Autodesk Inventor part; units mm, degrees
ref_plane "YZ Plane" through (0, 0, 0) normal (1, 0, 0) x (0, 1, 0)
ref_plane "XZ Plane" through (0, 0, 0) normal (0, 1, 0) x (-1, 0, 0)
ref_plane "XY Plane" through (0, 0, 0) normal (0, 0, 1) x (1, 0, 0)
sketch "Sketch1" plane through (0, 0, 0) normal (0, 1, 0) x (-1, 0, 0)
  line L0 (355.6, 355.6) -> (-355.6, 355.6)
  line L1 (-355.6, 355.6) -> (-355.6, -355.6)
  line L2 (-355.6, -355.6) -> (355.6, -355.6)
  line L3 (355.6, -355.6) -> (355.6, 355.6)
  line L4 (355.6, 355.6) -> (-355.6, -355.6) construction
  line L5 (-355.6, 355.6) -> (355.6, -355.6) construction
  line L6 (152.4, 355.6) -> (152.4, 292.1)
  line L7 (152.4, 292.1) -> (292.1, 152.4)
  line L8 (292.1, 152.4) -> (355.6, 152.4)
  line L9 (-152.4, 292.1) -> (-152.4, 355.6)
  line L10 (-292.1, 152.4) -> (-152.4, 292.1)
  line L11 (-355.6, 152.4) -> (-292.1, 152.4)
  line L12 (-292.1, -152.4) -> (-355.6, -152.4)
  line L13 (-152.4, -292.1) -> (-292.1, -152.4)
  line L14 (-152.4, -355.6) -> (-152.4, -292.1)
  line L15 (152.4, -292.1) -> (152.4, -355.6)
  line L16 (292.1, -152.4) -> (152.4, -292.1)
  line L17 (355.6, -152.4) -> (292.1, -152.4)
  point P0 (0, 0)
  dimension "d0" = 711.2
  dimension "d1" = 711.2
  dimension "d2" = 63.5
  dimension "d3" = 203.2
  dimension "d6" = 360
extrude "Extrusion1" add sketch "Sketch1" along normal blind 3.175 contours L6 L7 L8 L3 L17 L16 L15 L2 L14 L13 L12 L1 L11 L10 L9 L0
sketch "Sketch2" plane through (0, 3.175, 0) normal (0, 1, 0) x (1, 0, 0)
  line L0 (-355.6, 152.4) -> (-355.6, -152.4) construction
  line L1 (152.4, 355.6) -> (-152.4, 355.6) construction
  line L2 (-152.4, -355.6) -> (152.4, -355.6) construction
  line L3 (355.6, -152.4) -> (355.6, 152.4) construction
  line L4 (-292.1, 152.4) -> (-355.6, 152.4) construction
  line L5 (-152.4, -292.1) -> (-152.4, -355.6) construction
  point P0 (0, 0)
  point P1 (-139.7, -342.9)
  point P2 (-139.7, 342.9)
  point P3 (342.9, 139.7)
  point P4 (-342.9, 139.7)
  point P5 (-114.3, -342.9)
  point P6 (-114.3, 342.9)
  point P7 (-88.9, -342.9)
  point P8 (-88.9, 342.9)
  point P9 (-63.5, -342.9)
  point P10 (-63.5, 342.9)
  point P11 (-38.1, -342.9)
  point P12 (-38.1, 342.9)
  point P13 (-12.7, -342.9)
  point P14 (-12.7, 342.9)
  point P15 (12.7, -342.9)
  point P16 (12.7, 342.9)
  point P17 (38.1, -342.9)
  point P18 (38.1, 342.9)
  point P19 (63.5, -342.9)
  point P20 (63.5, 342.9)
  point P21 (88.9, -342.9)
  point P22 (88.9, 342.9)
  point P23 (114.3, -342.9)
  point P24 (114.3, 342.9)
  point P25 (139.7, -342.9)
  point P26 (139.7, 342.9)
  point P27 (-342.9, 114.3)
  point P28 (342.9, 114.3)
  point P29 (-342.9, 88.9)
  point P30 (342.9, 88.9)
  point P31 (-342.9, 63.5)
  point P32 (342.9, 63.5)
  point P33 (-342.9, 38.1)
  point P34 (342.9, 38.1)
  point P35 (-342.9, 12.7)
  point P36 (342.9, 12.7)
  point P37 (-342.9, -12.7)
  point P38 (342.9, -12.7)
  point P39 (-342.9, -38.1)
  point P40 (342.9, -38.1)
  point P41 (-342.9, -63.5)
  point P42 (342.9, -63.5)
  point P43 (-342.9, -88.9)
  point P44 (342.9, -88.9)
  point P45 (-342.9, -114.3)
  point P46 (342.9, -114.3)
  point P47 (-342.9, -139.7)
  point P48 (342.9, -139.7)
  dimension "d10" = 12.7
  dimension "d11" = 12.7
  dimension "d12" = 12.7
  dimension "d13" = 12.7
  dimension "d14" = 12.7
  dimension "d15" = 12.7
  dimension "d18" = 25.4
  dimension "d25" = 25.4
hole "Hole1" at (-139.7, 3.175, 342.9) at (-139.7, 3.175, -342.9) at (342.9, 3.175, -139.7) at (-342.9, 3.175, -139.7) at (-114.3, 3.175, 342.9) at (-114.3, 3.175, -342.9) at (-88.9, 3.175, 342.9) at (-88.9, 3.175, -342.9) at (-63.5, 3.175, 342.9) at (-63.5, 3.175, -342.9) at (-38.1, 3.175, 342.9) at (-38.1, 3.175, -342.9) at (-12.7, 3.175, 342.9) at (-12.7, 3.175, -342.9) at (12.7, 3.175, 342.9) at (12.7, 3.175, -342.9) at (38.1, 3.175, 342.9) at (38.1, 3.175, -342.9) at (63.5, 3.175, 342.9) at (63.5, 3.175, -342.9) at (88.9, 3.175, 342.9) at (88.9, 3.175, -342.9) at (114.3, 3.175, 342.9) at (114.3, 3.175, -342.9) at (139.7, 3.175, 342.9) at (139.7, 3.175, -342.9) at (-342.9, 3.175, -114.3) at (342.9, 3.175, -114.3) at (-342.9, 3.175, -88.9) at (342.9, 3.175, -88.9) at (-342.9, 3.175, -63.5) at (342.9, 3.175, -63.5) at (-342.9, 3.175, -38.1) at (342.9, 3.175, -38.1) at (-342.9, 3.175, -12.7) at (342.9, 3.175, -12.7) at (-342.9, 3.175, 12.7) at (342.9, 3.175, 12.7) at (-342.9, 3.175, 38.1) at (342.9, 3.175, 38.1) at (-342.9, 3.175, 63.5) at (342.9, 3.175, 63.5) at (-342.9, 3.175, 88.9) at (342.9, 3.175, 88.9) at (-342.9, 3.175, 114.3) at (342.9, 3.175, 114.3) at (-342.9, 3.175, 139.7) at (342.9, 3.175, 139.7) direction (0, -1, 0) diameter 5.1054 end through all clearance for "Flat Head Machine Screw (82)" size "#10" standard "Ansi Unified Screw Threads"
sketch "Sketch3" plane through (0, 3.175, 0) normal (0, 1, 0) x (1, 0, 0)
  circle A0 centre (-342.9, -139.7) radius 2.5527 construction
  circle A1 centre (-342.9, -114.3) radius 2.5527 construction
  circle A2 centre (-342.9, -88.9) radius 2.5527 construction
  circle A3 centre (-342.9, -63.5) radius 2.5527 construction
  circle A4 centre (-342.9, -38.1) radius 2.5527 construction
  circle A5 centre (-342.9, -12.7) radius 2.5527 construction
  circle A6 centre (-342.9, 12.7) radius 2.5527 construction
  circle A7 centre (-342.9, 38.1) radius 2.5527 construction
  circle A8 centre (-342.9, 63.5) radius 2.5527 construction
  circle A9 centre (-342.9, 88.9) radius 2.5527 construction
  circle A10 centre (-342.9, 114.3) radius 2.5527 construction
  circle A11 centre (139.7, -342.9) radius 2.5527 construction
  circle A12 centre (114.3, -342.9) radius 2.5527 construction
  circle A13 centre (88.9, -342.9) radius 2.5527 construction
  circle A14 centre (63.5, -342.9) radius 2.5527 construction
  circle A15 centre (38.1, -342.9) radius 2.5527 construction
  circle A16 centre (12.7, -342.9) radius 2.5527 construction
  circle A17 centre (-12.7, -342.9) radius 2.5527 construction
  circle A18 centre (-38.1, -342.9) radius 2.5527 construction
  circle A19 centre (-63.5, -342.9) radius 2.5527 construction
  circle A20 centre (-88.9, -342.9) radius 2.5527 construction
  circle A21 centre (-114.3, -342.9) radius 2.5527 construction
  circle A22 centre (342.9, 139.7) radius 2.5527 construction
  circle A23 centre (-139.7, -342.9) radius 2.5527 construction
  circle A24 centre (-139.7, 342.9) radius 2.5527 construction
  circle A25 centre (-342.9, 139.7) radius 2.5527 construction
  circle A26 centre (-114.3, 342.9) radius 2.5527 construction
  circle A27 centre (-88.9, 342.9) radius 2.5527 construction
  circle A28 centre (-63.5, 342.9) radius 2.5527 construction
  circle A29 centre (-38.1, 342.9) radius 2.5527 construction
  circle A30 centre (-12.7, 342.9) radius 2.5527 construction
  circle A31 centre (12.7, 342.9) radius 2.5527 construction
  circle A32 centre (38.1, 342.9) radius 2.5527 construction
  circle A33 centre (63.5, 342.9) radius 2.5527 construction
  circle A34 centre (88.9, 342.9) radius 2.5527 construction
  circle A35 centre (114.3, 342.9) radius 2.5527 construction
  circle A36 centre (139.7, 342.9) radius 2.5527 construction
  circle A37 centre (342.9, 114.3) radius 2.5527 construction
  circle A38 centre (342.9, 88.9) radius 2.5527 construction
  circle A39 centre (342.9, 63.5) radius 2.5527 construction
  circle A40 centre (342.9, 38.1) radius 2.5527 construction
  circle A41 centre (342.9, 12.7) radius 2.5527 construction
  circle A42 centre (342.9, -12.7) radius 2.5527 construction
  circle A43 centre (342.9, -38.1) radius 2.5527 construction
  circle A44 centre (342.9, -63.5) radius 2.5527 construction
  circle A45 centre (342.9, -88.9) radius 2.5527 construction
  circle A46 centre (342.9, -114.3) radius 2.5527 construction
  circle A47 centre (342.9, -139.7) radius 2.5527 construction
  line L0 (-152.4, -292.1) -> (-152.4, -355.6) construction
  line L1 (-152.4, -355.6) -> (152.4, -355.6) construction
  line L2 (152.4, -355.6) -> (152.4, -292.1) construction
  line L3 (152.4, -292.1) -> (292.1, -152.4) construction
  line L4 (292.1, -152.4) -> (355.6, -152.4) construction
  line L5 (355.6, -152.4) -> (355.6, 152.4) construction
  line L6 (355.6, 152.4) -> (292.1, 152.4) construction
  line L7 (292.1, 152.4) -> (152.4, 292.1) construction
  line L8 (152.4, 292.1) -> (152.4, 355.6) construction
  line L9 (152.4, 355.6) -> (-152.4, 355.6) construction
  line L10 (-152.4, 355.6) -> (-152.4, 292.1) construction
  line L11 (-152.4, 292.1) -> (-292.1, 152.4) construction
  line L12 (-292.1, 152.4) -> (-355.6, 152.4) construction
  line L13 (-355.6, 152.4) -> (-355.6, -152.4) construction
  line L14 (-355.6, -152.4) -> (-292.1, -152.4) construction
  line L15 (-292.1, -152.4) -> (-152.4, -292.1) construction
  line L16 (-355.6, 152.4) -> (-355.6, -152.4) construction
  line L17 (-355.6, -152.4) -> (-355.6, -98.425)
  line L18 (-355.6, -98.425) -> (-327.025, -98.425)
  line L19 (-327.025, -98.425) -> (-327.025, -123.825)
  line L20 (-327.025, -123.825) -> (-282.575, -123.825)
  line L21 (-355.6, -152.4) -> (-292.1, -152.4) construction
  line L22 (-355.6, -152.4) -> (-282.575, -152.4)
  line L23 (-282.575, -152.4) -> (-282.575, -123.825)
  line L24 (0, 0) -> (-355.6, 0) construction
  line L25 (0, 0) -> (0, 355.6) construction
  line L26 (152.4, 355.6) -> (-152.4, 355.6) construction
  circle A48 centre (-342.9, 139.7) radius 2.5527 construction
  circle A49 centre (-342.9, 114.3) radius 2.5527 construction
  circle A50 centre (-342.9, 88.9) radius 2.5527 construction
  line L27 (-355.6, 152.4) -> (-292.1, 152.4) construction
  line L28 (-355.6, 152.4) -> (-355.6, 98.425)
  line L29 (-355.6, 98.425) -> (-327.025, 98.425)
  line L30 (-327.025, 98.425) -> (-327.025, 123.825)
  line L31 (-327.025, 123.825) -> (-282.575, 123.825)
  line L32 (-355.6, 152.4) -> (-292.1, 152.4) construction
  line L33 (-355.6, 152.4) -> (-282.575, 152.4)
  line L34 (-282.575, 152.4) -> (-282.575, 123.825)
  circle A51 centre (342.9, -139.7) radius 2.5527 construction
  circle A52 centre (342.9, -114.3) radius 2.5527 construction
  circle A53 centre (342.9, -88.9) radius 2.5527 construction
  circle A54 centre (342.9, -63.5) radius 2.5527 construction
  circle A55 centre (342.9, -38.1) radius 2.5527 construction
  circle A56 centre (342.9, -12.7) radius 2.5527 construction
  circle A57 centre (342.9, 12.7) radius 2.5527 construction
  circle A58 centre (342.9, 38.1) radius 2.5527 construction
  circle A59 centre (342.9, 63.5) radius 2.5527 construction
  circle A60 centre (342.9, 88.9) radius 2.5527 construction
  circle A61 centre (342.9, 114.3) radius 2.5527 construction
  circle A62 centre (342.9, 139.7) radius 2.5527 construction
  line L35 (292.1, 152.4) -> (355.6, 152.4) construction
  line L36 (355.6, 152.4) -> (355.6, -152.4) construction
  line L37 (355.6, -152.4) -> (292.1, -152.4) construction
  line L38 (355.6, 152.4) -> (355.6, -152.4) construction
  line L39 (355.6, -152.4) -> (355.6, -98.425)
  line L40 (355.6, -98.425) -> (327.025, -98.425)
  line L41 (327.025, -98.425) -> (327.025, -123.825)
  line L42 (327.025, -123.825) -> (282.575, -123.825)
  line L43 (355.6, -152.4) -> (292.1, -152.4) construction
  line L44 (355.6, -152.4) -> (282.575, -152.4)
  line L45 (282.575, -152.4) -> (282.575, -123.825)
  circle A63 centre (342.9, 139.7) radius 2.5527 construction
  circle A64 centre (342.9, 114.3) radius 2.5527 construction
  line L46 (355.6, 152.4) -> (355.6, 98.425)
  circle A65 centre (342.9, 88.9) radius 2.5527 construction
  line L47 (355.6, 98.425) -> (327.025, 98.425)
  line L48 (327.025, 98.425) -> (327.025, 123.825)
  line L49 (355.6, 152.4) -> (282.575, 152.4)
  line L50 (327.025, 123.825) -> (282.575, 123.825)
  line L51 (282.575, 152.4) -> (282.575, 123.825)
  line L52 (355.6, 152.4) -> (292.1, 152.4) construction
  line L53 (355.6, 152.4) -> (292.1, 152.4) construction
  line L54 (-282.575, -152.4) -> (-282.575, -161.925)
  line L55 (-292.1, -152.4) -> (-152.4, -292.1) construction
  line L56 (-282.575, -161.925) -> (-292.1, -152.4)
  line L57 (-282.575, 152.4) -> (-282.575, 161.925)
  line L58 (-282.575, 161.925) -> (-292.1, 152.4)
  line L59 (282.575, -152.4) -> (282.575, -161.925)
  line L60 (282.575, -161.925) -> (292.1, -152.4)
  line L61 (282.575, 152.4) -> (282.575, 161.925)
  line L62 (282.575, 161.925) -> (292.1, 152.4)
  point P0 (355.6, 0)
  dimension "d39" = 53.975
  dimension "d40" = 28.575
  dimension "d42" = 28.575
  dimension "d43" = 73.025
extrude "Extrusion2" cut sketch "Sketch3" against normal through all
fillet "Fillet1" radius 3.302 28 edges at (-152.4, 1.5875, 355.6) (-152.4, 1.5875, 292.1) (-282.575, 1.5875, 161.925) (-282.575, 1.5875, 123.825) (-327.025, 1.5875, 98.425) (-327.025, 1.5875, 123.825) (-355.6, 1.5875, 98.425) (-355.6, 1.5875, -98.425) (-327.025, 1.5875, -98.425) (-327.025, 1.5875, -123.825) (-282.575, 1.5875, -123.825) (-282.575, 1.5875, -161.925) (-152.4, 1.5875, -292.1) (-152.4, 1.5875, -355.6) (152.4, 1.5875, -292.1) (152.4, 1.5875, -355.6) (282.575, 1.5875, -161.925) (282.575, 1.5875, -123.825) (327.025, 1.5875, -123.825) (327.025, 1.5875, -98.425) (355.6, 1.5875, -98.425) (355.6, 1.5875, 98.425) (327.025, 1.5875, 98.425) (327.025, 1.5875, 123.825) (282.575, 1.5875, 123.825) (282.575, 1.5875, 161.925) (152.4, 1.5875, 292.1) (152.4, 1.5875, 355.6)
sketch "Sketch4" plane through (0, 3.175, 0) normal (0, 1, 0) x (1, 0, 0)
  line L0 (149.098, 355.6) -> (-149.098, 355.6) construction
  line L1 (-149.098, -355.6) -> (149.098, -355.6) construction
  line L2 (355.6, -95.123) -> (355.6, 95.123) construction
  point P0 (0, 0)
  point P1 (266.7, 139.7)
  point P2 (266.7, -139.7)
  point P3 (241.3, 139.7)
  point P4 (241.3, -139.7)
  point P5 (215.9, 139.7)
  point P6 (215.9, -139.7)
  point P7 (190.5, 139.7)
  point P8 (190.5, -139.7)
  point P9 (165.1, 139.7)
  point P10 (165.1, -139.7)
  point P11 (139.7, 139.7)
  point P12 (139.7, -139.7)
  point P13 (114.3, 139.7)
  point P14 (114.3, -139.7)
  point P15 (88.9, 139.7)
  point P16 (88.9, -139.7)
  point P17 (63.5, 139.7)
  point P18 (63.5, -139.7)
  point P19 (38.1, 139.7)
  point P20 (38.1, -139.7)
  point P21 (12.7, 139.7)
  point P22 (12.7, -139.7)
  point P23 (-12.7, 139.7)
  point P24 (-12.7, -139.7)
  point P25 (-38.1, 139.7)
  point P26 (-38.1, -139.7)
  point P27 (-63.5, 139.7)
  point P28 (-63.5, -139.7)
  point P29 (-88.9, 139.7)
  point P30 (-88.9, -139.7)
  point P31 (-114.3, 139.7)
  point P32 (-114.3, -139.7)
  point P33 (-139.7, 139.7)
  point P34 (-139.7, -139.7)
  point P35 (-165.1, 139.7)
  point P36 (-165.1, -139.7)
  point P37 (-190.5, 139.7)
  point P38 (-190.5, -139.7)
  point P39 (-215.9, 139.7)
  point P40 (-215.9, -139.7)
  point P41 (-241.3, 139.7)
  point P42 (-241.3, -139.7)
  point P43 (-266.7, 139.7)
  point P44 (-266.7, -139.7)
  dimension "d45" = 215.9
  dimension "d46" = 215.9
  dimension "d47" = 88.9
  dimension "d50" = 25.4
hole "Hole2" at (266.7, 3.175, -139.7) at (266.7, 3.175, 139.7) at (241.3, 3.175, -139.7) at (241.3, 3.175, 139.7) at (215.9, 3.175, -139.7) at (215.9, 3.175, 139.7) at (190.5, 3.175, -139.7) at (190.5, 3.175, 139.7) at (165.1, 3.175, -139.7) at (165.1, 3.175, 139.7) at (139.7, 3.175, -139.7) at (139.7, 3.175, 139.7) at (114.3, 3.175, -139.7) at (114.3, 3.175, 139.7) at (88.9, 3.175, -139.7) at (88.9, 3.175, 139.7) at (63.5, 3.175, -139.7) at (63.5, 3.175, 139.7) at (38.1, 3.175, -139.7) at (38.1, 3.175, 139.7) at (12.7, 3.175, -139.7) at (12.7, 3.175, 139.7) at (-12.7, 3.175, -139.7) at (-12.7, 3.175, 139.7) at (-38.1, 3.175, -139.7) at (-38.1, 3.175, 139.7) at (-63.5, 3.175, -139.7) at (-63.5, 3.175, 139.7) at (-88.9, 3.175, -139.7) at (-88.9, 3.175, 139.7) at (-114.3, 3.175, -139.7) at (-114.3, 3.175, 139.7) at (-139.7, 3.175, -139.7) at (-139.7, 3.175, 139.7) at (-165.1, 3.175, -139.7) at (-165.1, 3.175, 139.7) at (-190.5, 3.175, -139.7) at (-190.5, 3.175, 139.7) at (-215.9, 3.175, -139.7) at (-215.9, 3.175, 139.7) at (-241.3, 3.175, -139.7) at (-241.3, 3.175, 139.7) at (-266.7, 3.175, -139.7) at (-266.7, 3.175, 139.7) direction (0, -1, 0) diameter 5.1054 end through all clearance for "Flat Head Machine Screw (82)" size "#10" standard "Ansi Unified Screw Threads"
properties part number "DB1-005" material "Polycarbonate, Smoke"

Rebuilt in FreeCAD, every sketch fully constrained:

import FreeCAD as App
import Part
import Sketcher

V = App.Vector
Q = App.Units.Quantity


def edges_at(feature, points):
    """Names of the edges that pass closest to the given points."""
    edges = feature.Shape.Edges
    near = lambda p: min(range(len(edges)), key=lambda i: edges[i].distToShape(Part.Vertex(*p))[0])
    return sorted({f"Edge{near(p) + 1}" for p in points})


def add_polygon(sketch, points):
    """Adds a closed chain of lines whose ends are joined by coincident constraints."""
    first, n = sketch.GeometryCount, len(points)
    for a, b in zip(points, points[1:] + points[:1]):
        sketch.addGeometry(Part.LineSegment(App.Vector(*a, 0), App.Vector(*b, 0)), False)
    for i in range(n):
        sketch.addConstraint(Sketcher.Constraint("Coincident", first + i, 2, first + (i + 1) % n, 1))

doc = App.newDocument("Part")
body = doc.addObject("PartDesign::Body", "Body")

# Sketch on XZ plane
sketch1 = doc.addObject("Sketcher::SketchObject", "Sketch")
body.addObject(sketch1)
sketch1.AttachmentSupport = (doc.XZ_Plane, [""])
sketch1.MapMode = "FlatFace"
add_polygon(sketch1, [(-152, 292), (-152, 356), (152, 356), (152, 292), (292, 152), (356, 152), (356, -152), (292, -152), (152, -292), (152, -356), (-152, -356), (-152, -292), (-292, -152), (-356, -152), (-356, 152), (-292, 152)])  # lines 0-15
sketch1.addConstraint([
    Sketcher.Constraint("Vertical", 0),
    Sketcher.Constraint("Horizontal", 1),
    Sketcher.Constraint("Vertical", 2),
    Sketcher.Constraint("Horizontal", 4),
    Sketcher.Constraint("Vertical", 5),
    Sketcher.Constraint("Horizontal", 6),
    Sketcher.Constraint("Vertical", 8),
    Sketcher.Constraint("Horizontal", 9),
    Sketcher.Constraint("Vertical", 10),
    Sketcher.Constraint("Horizontal", 12),
    Sketcher.Constraint("Vertical", 13),
    Sketcher.Constraint("Horizontal", 14),
    Sketcher.Constraint("Symmetric", 0, 2, 8, 2, -1, 1),
    Sketcher.Constraint("Symmetric", 2, 2, 10, 2, -1, 1),
    Sketcher.Constraint("Symmetric", 3, 2, 11, 2, -1, 1),
    Sketcher.Constraint("Symmetric", 5, 2, 13, 2, -1, 1),
    Sketcher.Constraint("Symmetric", 7, 2, 10, 2, -2),
    Sketcher.Constraint("Symmetric", 6, 2, 11, 2, -2),
    Sketcher.Constraint("Perpendicular", 3, 7),
    Sketcher.Constraint("Perpendicular", 11, 15),
    Sketcher.Constraint("Horizontal", 2, 2, 15, 2),
    Sketcher.Constraint("Equal", 14, 0),
    Sketcher.Constraint("Equal", 9, 5),
    Sketcher.Constraint("DistanceX", 4, 1, 4, 2, Q("2.5 in")),
    Sketcher.Constraint("DistanceY", 3, 2, 1, 2, Q("8 in")),
    Sketcher.Constraint("DistanceX", 1, 1, 1, 2, Q("12 in")),
])
pad1 = doc.addObject("PartDesign::Pad", "Pad")
body.addObject(pad1)
pad1.Profile = sketch1
pad1.Length = Q("0.125 in")
pad1.Reversed = True

# Sketch on XZ plane
sketch2 = doc.addObject("Sketcher::SketchObject", "Sketch001")
body.addObject(sketch2)
sketch2.AttachmentSupport = (doc.XZ_Plane, [""])
sketch2.MapMode = "FlatFace"
sketch2.AttachmentOffset = App.Placement(V(0, 0, -0.125 * 25.4), App.Rotation())
sketch2.addGeometry([
    Part.Circle(V(-139.7, 342.9, 0), V(0, 0, 1), 2.6),  # 0
    Part.Circle(V(-139.7, -342.9, 0), V(0, 0, 1), 2.6),  # 1
    Part.Circle(V(342.9, -139.7, 0), V(0, 0, 1), 2.6),  # 2
    Part.Circle(V(-342.9, -139.7, 0), V(0, 0, 1), 2.6),  # 3
    Part.Circle(V(-114.3, 342.9, 0), V(0, 0, 1), 2.6),  # 4
    Part.Circle(V(-114.3, -342.9, 0), V(0, 0, 1), 2.6),  # 5
    Part.Circle(V(-88.9, 342.9, 0), V(0, 0, 1), 2.6),  # 6
    Part.Circle(V(-88.9, -342.9, 0), V(0, 0, 1), 2.6),  # 7
    Part.Circle(V(-63.5, 342.9, 0), V(0, 0, 1), 2.6),  # 8
    Part.Circle(V(-63.5, -342.9, 0), V(0, 0, 1), 2.6),  # 9
    Part.Circle(V(-38.1, 342.9, 0), V(0, 0, 1), 2.6),  # 10
    Part.Circle(V(-38.1, -342.9, 0), V(0, 0, 1), 2.6),  # 11
    Part.Circle(V(-12.7, 342.9, 0), V(0, 0, 1), 2.6),  # 12
    Part.Circle(V(-12.7, -342.9, 0), V(0, 0, 1), 2.6),  # 13
    Part.Circle(V(12.7, 342.9, 0), V(0, 0, 1), 2.6),  # 14
    Part.Circle(V(12.7, -342.9, 0), V(0, 0, 1), 2.6),  # 15
    Part.Circle(V(38.1, 342.9, 0), V(0, 0, 1), 2.6),  # 16
    Part.Circle(V(38.1, -342.9, 0), V(0, 0, 1), 2.6),  # 17
    Part.Circle(V(63.5, 342.9, 0), V(0, 0, 1), 2.6),  # 18
    Part.Circle(V(63.5, -342.9, 0), V(0, 0, 1), 2.6),  # 19
    Part.Circle(V(88.9, 342.9, 0), V(0, 0, 1), 2.6),  # 20
    Part.Circle(V(88.9, -342.9, 0), V(0, 0, 1), 2.6),  # 21
    Part.Circle(V(114.3, 342.9, 0), V(0, 0, 1), 2.6),  # 22
    Part.Circle(V(114.3, -342.9, 0), V(0, 0, 1), 2.6),  # 23
    Part.Circle(V(139.7, 342.9, 0), V(0, 0, 1), 2.6),  # 24
    Part.Circle(V(139.7, -342.9, 0), V(0, 0, 1), 2.6),  # 25
    Part.Circle(V(-342.9, -114.3, 0), V(0, 0, 1), 2.6),  # 26
    Part.Circle(V(342.9, -114.3, 0), V(0, 0, 1), 2.6),  # 27
    Part.Circle(V(-342.9, -88.9, 0), V(0, 0, 1), 2.6),  # 28
    Part.Circle(V(342.9, -88.9, 0), V(0, 0, 1), 2.6),  # 29
    Part.Circle(V(-342.9, -63.5, 0), V(0, 0, 1), 2.6),  # 30
    Part.Circle(V(342.9, -63.5, 0), V(0, 0, 1), 2.6),  # 31
    Part.Circle(V(-342.9, -38.1, 0), V(0, 0, 1), 2.6),  # 32
    Part.Circle(V(342.9, -38.1, 0), V(0, 0, 1), 2.6),  # 33
    Part.Circle(V(-342.9, -12.7, 0), V(0, 0, 1), 2.6),  # 34
    Part.Circle(V(342.9, -12.7, 0), V(0, 0, 1), 2.6),  # 35
    Part.Circle(V(-342.9, 12.7, 0), V(0, 0, 1), 2.6),  # 36
    Part.Circle(V(342.9, 12.7, 0), V(0, 0, 1), 2.6),  # 37
    Part.Circle(V(-342.9, 38.1, 0), V(0, 0, 1), 2.6),  # 38
    Part.Circle(V(342.9, 38.1, 0), V(0, 0, 1), 2.6),  # 39
    Part.Circle(V(-342.9, 63.5, 0), V(0, 0, 1), 2.6),  # 40
    Part.Circle(V(342.9, 63.5, 0), V(0, 0, 1), 2.6),  # 41
    Part.Circle(V(-342.9, 88.9, 0), V(0, 0, 1), 2.6),  # 42
    Part.Circle(V(342.9, 88.9, 0), V(0, 0, 1), 2.6),  # 43
    Part.Circle(V(-342.9, 114.3, 0), V(0, 0, 1), 2.6),  # 44
    Part.Circle(V(342.9, 114.3, 0), V(0, 0, 1), 2.6),  # 45
    Part.Circle(V(-342.9, 139.7, 0), V(0, 0, 1), 2.6),  # 46
    Part.Circle(V(342.9, 139.7, 0), V(0, 0, 1), 2.6),  # 47
], False)
sketch2.addConstraint([
    Sketcher.Constraint("Equal", 0, 1),
    Sketcher.Constraint("Equal", 1, 2),
    Sketcher.Constraint("Equal", 2, 3),
    Sketcher.Constraint("Equal", 3, 4),
    Sketcher.Constraint("Equal", 4, 5),
    Sketcher.Constraint("Equal", 5, 6),
    Sketcher.Constraint("Equal", 6, 7),
    Sketcher.Constraint("Equal", 7, 8),
    Sketcher.Constraint("Equal", 8, 9),
    Sketcher.Constraint("Equal", 9, 10),
    Sketcher.Constraint("Equal", 10, 11),
    Sketcher.Constraint("Equal", 11, 12),
    Sketcher.Constraint("Equal", 12, 13),
    Sketcher.Constraint("Equal", 13, 14),
    Sketcher.Constraint("Equal", 14, 15),
    Sketcher.Constraint("Equal", 15, 16),
    Sketcher.Constraint("Equal", 16, 17),
    Sketcher.Constraint("Equal", 17, 18),
    Sketcher.Constraint("Equal", 18, 19),
    Sketcher.Constraint("Equal", 19, 20),
    Sketcher.Constraint("Equal", 20, 21),
    Sketcher.Constraint("Equal", 21, 22),
    Sketcher.Constraint("Equal", 22, 23),
    Sketcher.Constraint("Equal", 23, 24),
    Sketcher.Constraint("Equal", 24, 25),
    Sketcher.Constraint("Equal", 25, 26),
    Sketcher.Constraint("Equal", 26, 27),
    Sketcher.Constraint("Equal", 27, 28),
    Sketcher.Constraint("Equal", 28, 29),
    Sketcher.Constraint("Equal", 29, 30),
    Sketcher.Constraint("Equal", 30, 31),
    Sketcher.Constraint("Equal", 31, 32),
    Sketcher.Constraint("Equal", 32, 33),
    Sketcher.Constraint("Equal", 33, 34),
    Sketcher.Constraint("Equal", 34, 35),
    Sketcher.Constraint("Equal", 35, 36),
    Sketcher.Constraint("Equal", 36, 37),
    Sketcher.Constraint("Equal", 37, 38),
    Sketcher.Constraint("Equal", 38, 39),
    Sketcher.Constraint("Equal", 39, 40),
    Sketcher.Constraint("Equal", 40, 41),
    Sketcher.Constraint("Equal", 41, 42),
    Sketcher.Constraint("Equal", 42, 43),
    Sketcher.Constraint("Equal", 43, 44),
    Sketcher.Constraint("Equal", 44, 45),
    Sketcher.Constraint("Equal", 45, 46),
    Sketcher.Constraint("Equal", 46, 47),
    Sketcher.Constraint("Symmetric", 13, 3, 14, 3, -1, 1),
    Sketcher.Constraint("Symmetric", 12, 3, 15, 3, -1, 1),
    Sketcher.Constraint("Symmetric", 11, 3, 16, 3, -1, 1),
    Sketcher.Constraint("Symmetric", 10, 3, 17, 3, -1, 1),
    Sketcher.Constraint("Symmetric", 9, 3, 18, 3, -1, 1),
    Sketcher.Constraint("Symmetric", 8, 3, 19, 3, -1, 1),
    Sketcher.Constraint("Symmetric", 7, 3, 20, 3, -1, 1),
    Sketcher.Constraint("Symmetric", 6, 3, 21, 3, -1, 1),
    Sketcher.Constraint("Symmetric", 5, 3, 22, 3, -1, 1),
    Sketcher.Constraint("Symmetric", 4, 3, 23, 3, -1, 1),
    Sketcher.Constraint("Symmetric", 1, 3, 24, 3, -1, 1),
    Sketcher.Constraint("Symmetric", 0, 3, 25, 3, -1, 1),
    Sketcher.Constraint("Symmetric", 35, 3, 36, 3, -1, 1),
    Sketcher.Constraint("Symmetric", 34, 3, 37, 3, -1, 1),
    Sketcher.Constraint("Symmetric", 33, 3, 38, 3, -1, 1),
    Sketcher.Constraint("Symmetric", 32, 3, 39, 3, -1, 1),
    Sketcher.Constraint("Symmetric", 31, 3, 40, 3, -1, 1),
    Sketcher.Constraint("Symmetric", 30, 3, 41, 3, -1, 1),
    Sketcher.Constraint("Symmetric", 29, 3, 42, 3, -1, 1),
    Sketcher.Constraint("Symmetric", 28, 3, 43, 3, -1, 1),
    Sketcher.Constraint("Symmetric", 27, 3, 44, 3, -1, 1),
    Sketcher.Constraint("Symmetric", 26, 3, 45, 3, -1, 1),
    Sketcher.Constraint("Symmetric", 2, 3, 46, 3, -1, 1),
    Sketcher.Constraint("Symmetric", 3, 3, 47, 3, -1, 1),
    Sketcher.Constraint("Symmetric", 2, 3, 3, 3, -2),
    Sketcher.Constraint("Symmetric", 12, 3, 14, 3, -2),
    Sketcher.Constraint("Symmetric", 10, 3, 16, 3, -2),
    Sketcher.Constraint("Symmetric", 8, 3, 18, 3, -2),
    Sketcher.Constraint("Symmetric", 6, 3, 20, 3, -2),
    Sketcher.Constraint("Symmetric", 4, 3, 22, 3, -2),
    Sketcher.Constraint("Symmetric", 0, 3, 24, 3, -2),
    Sketcher.Constraint("Symmetric", 26, 3, 27, 3, -2),
    Sketcher.Constraint("Symmetric", 28, 3, 29, 3, -2),
    Sketcher.Constraint("Symmetric", 30, 3, 31, 3, -2),
    Sketcher.Constraint("Symmetric", 32, 3, 33, 3, -2),
    Sketcher.Constraint("Symmetric", 34, 3, 35, 3, -2),
    Sketcher.Constraint("Horizontal", 0, 3, 4, 3),
    Sketcher.Constraint("Horizontal", 4, 3, 6, 3),
    Sketcher.Constraint("Horizontal", 6, 3, 8, 3),
    Sketcher.Constraint("Horizontal", 8, 3, 10, 3),
    Sketcher.Constraint("Horizontal", 10, 3, 12, 3),
    Sketcher.Constraint("Vertical", 3, 3, 26, 3),
    Sketcher.Constraint("Vertical", 26, 3, 28, 3),
    Sketcher.Constraint("Vertical", 28, 3, 30, 3),
    Sketcher.Constraint("Vertical", 30, 3, 32, 3),
    Sketcher.Constraint("Vertical", 32, 3, 34, 3),
    Sketcher.Constraint("Diameter", 0, Q("0.201 in")),
    Sketcher.Constraint("DistanceY", 1, 3, 0, 3, Q("27 in")),
    Sketcher.Constraint("DistanceX", 1, 3, 2, 3, Q("19 in")),
    Sketcher.Constraint("DistanceY", 1, 3, 2, 3, Q("8 in")),
    Sketcher.Constraint("DistanceX", 3, 3, 1, 3, Q("8 in")),
    Sketcher.Constraint("DistanceX", 0, 3, 4, 3, Q("1 in")),
    Sketcher.Constraint("DistanceX", 4, 3, 6, 3, Q("1 in")),
    Sketcher.Constraint("DistanceX", 6, 3, 8, 3, Q("1 in")),
    Sketcher.Constraint("DistanceX", 8, 3, 10, 3, Q("1 in")),
    Sketcher.Constraint("DistanceX", 10, 3, 12, 3, Q("1 in")),
    Sketcher.Constraint("DistanceY", 3, 3, 26, 3, Q("1 in")),
    Sketcher.Constraint("DistanceY", 26, 3, 28, 3, Q("1 in")),
    Sketcher.Constraint("DistanceY", 28, 3, 30, 3, Q("1 in")),
    Sketcher.Constraint("DistanceY", 30, 3, 32, 3, Q("1 in")),
    Sketcher.Constraint("DistanceY", 32, 3, 34, 3, Q("1 in")),
])
doc.recompute()
hole = doc.addObject("PartDesign::Hole", "Hole")
body.addObject(hole)
hole.Profile = sketch2
hole.ThreadType = "None"
hole.Diameter = Q("0.201 in")
hole.DepthType = "ThroughAll"
hole.Reversed = True

# Sketch on XZ plane
sketch3 = doc.addObject("Sketcher::SketchObject", "Sketch002")
body.addObject(sketch3)
sketch3.AttachmentSupport = (doc.XZ_Plane, [""])
sketch3.MapMode = "FlatFace"
sketch3.AttachmentOffset = App.Placement(V(0, 0, -0.125 * 25.4), App.Rotation())
add_polygon(sketch3, [(-356, 98), (-356, 152), (-292, 152), (-283, 162), (-283, 124), (-327, 124), (-327, 98)])  # lines 0-6
add_polygon(sketch3, [(-292, -152), (-356, -152), (-356, -98), (-327, -98), (-327, -124), (-283, -124), (-283, -162)])  # lines 7-13
add_polygon(sketch3, [(292, 152), (356, 152), (356, 98), (327, 98), (327, 124), (283, 124), (283, 162)])  # lines 14-20
add_polygon(sketch3, [(356, -98), (356, -152), (292, -152), (283, -162), (283, -124), (327, -124), (327, -98)])  # lines 21-27
sketch3.addConstraint([
    Sketcher.Constraint("Vertical", 0),
    Sketcher.Constraint("Horizontal", 1),
    Sketcher.Constraint("Vertical", 3),
    Sketcher.Constraint("Horizontal", 4),
    Sketcher.Constraint("Vertical", 5),
    Sketcher.Constraint("Horizontal", 6),
    Sketcher.Constraint("Horizontal", 7),
    Sketcher.Constraint("Vertical", 8),
    Sketcher.Constraint("Horizontal", 9),
    Sketcher.Constraint("Vertical", 10),
    Sketcher.Constraint("Horizontal", 11),
    Sketcher.Constraint("Vertical", 12),
    Sketcher.Constraint("Horizontal", 14),
    Sketcher.Constraint("Vertical", 15),
    Sketcher.Constraint("Horizontal", 16),
    Sketcher.Constraint("Vertical", 17),
    Sketcher.Constraint("Horizontal", 18),
    Sketcher.Constraint("Vertical", 19),
    Sketcher.Constraint("Vertical", 21),
    Sketcher.Constraint("Horizontal", 22),
    Sketcher.Constraint("Vertical", 24),
    Sketcher.Constraint("Horizontal", 25),
    Sketcher.Constraint("Vertical", 26),
    Sketcher.Constraint("Horizontal", 27),
    Sketcher.Constraint("Symmetric", 7, 2, 14, 2, -1, 1),
    Sketcher.Constraint("Symmetric", 9, 2, 16, 2, -1, 1),
    Sketcher.Constraint("Symmetric", 11, 2, 18, 2, -1, 1),
    Sketcher.Constraint("Symmetric", 0, 2, 21, 2, -1, 1),
    Sketcher.Constraint("Symmetric", 2, 2, 23, 2, -1, 1),
    Sketcher.Constraint("Symmetric", 4, 2, 25, 2, -1, 1),
    Sketcher.Constraint("Symmetric", 0, 2, 14, 2, -2),
    Sketcher.Constraint("Symmetric", 5, 2, 16, 2, -2),
    Sketcher.Constraint("Symmetric", 3, 2, 18, 2, -2),
    Sketcher.Constraint("Perpendicular", 2, 13),
    Sketcher.Constraint("Parallel", 13, 20),
    Sketcher.Constraint("Perpendicular", 20, 23),
    Sketcher.Constraint("Horizontal", 2, 2, 19, 2),
    Sketcher.Constraint("Horizontal", 12, 2, 23, 2),
    Sketcher.Constraint("Horizontal", 9, 2, 26, 2),
    Sketcher.Constraint("Vertical", 1, 2, 13, 2),
    Sketcher.Constraint("DistanceX", 6, 2, 6, 1, Q("1.125 in")),
    Sketcher.Constraint("DistanceY", 0, 1, 0, 2, Q("2.125 in")),
    Sketcher.Constraint("DistanceY", 5, 2, 5, 1, Q("1 in")),
    Sketcher.Constraint("DistanceX", 1, 1, 1, 2, Q("2.5 in")),
    Sketcher.Constraint("DistanceY", 3, 2, 3, 1, Q("1.5 in")),
    Sketcher.Constraint("DistanceX", 0, 2, -1, 1, Q("14 in")),
    Sketcher.Constraint("DistanceY", -1, 1, 0, 2, Q("6 in")),
])
pocket1 = doc.addObject("PartDesign::Pocket", "Pocket")
body.addObject(pocket1)
pocket1.Profile = sketch3
pocket1.Type = "ThroughAll"
pocket1.Reversed = True
doc.recompute()

fillet = doc.addObject("PartDesign::Fillet", "Fillet")
body.addObject(fillet)
fillet.Base = (pocket1, edges_at(pocket1, [
    (-152.4, 1.587, 355.6),
    (-152.4, 1.587, 292.1),
    (-282.575, 1.587, 161.925),
    (-282.575, 1.587, 123.825),
    (-327.025, 1.587, 98.425),
    (-327.025, 1.587, 123.825),
    (-355.6, 1.587, 98.425),
    (-355.6, 1.587, -98.425),
    (-327.025, 1.587, -98.425),
    (-327.025, 1.587, -123.825),
    (-282.575, 1.587, -123.825),
    (-282.575, 1.587, -161.925),
    (-152.4, 1.587, -292.1),
    (-152.4, 1.587, -355.6),
    (152.4, 1.587, -292.1),
    (152.4, 1.587, -355.6),
    (282.575, 1.587, -161.925),
    (282.575, 1.587, -123.825),
    (327.025, 1.587, -123.825),
    (327.025, 1.587, -98.425),
    (355.6, 1.587, -98.425),
    (355.6, 1.587, 98.425),
    (327.025, 1.587, 98.425),
    (327.025, 1.587, 123.825),
    (282.575, 1.587, 123.825),
    (282.575, 1.587, 161.925),
    (152.4, 1.587, 292.1),
    (152.4, 1.587, 355.6),
]))
fillet.Radius = Q("0.13 in")

# Sketch on XZ plane
sketch4 = doc.addObject("Sketcher::SketchObject", "Sketch003")
body.addObject(sketch4)
sketch4.AttachmentSupport = (doc.XZ_Plane, [""])
sketch4.MapMode = "FlatFace"
sketch4.AttachmentOffset = App.Placement(V(0, 0, -0.125 * 25.4), App.Rotation())
sketch4.addGeometry([
    Part.Circle(V(266.7, -139.7, 0), V(0, 0, 1), 2.6),  # 0
    Part.Circle(V(266.7, 139.7, 0), V(0, 0, 1), 2.6),  # 1
    Part.Circle(V(241.3, -139.7, 0), V(0, 0, 1), 2.6),  # 2
    Part.Circle(V(241.3, 139.7, 0), V(0, 0, 1), 2.6),  # 3
    Part.Circle(V(215.9, -139.7, 0), V(0, 0, 1), 2.6),  # 4
    Part.Circle(V(215.9, 139.7, 0), V(0, 0, 1), 2.6),  # 5
    Part.Circle(V(190.5, -139.7, 0), V(0, 0, 1), 2.6),  # 6
    Part.Circle(V(190.5, 139.7, 0), V(0, 0, 1), 2.6),  # 7
    Part.Circle(V(165.1, -139.7, 0), V(0, 0, 1), 2.6),  # 8
    Part.Circle(V(165.1, 139.7, 0), V(0, 0, 1), 2.6),  # 9
    Part.Circle(V(139.7, -139.7, 0), V(0, 0, 1), 2.6),  # 10
    Part.Circle(V(139.7, 139.7, 0), V(0, 0, 1), 2.6),  # 11
    Part.Circle(V(114.3, -139.7, 0), V(0, 0, 1), 2.6),  # 12
    Part.Circle(V(114.3, 139.7, 0), V(0, 0, 1), 2.6),  # 13
    Part.Circle(V(88.9, -139.7, 0), V(0, 0, 1), 2.6),  # 14
    Part.Circle(V(88.9, 139.7, 0), V(0, 0, 1), 2.6),  # 15
    Part.Circle(V(63.5, -139.7, 0), V(0, 0, 1), 2.6),  # 16
    Part.Circle(V(63.5, 139.7, 0), V(0, 0, 1), 2.6),  # 17
    Part.Circle(V(38.1, -139.7, 0), V(0, 0, 1), 2.6),  # 18
    Part.Circle(V(38.1, 139.7, 0), V(0, 0, 1), 2.6),  # 19
    Part.Circle(V(12.7, -139.7, 0), V(0, 0, 1), 2.6),  # 20
    Part.Circle(V(12.7, 139.7, 0), V(0, 0, 1), 2.6),  # 21
    Part.Circle(V(-12.7, -139.7, 0), V(0, 0, 1), 2.6),  # 22
    Part.Circle(V(-12.7, 139.7, 0), V(0, 0, 1), 2.6),  # 23
    Part.Circle(V(-38.1, -139.7, 0), V(0, 0, 1), 2.6),  # 24
    Part.Circle(V(-38.1, 139.7, 0), V(0, 0, 1), 2.6),  # 25
    Part.Circle(V(-63.5, -139.7, 0), V(0, 0, 1), 2.6),  # 26
    Part.Circle(V(-63.5, 139.7, 0), V(0, 0, 1), 2.6),  # 27
    Part.Circle(V(-88.9, -139.7, 0), V(0, 0, 1), 2.6),  # 28
    Part.Circle(V(-88.9, 139.7, 0), V(0, 0, 1), 2.6),  # 29
    Part.Circle(V(-114.3, -139.7, 0), V(0, 0, 1), 2.6),  # 30
    Part.Circle(V(-114.3, 139.7, 0), V(0, 0, 1), 2.6),  # 31
    Part.Circle(V(-139.7, -139.7, 0), V(0, 0, 1), 2.6),  # 32
    Part.Circle(V(-139.7, 139.7, 0), V(0, 0, 1), 2.6),  # 33
    Part.Circle(V(-165.1, -139.7, 0), V(0, 0, 1), 2.6),  # 34
    Part.Circle(V(-165.1, 139.7, 0), V(0, 0, 1), 2.6),  # 35
    Part.Circle(V(-190.5, -139.7, 0), V(0, 0, 1), 2.6),  # 36
    Part.Circle(V(-190.5, 139.7, 0), V(0, 0, 1), 2.6),  # 37
    Part.Circle(V(-215.9, -139.7, 0), V(0, 0, 1), 2.6),  # 38
    Part.Circle(V(-215.9, 139.7, 0), V(0, 0, 1), 2.6),  # 39
    Part.Circle(V(-241.3, -139.7, 0), V(0, 0, 1), 2.6),  # 40
    Part.Circle(V(-241.3, 139.7, 0), V(0, 0, 1), 2.6),  # 41
    Part.Circle(V(-266.7, -139.7, 0), V(0, 0, 1), 2.6),  # 42
    Part.Circle(V(-266.7, 139.7, 0), V(0, 0, 1), 2.6),  # 43
], False)
sketch4.addConstraint([
    Sketcher.Constraint("Equal", 0, 1),
    Sketcher.Constraint("Equal", 1, 2),
    Sketcher.Constraint("Equal", 2, 3),
    Sketcher.Constraint("Equal", 3, 4),
    Sketcher.Constraint("Equal", 4, 5),
    Sketcher.Constraint("Equal", 5, 6),
    Sketcher.Constraint("Equal", 6, 7),
    Sketcher.Constraint("Equal", 7, 8),
    Sketcher.Constraint("Equal", 8, 9),
    Sketcher.Constraint("Equal", 9, 10),
    Sketcher.Constraint("Equal", 10, 11),
    Sketcher.Constraint("Equal", 11, 12),
    Sketcher.Constraint("Equal", 12, 13),
    Sketcher.Constraint("Equal", 13, 14),
    Sketcher.Constraint("Equal", 14, 15),
    Sketcher.Constraint("Equal", 15, 16),
    Sketcher.Constraint("Equal", 16, 17),
    Sketcher.Constraint("Equal", 17, 18),
    Sketcher.Constraint("Equal", 18, 19),
    Sketcher.Constraint("Equal", 19, 20),
    Sketcher.Constraint("Equal", 20, 21),
    Sketcher.Constraint("Equal", 21, 22),
    Sketcher.Constraint("Equal", 22, 23),
    Sketcher.Constraint("Equal", 23, 24),
    Sketcher.Constraint("Equal", 24, 25),
    Sketcher.Constraint("Equal", 25, 26),
    Sketcher.Constraint("Equal", 26, 27),
    Sketcher.Constraint("Equal", 27, 28),
    Sketcher.Constraint("Equal", 28, 29),
    Sketcher.Constraint("Equal", 29, 30),
    Sketcher.Constraint("Equal", 30, 31),
    Sketcher.Constraint("Equal", 31, 32),
    Sketcher.Constraint("Equal", 32, 33),
    Sketcher.Constraint("Equal", 33, 34),
    Sketcher.Constraint("Equal", 34, 35),
    Sketcher.Constraint("Equal", 35, 36),
    Sketcher.Constraint("Equal", 36, 37),
    Sketcher.Constraint("Equal", 37, 38),
    Sketcher.Constraint("Equal", 38, 39),
    Sketcher.Constraint("Equal", 39, 40),
    Sketcher.Constraint("Equal", 40, 41),
    Sketcher.Constraint("Equal", 41, 42),
    Sketcher.Constraint("Equal", 42, 43),
    Sketcher.Constraint("Symmetric", 21, 3, 22, 3, -1, 1),
    Sketcher.Constraint("Symmetric", 20, 3, 23, 3, -1, 1),
    Sketcher.Constraint("Symmetric", 19, 3, 24, 3, -1, 1),
    Sketcher.Constraint("Symmetric", 18, 3, 25, 3, -1, 1),
    Sketcher.Constraint("Symmetric", 17, 3, 26, 3, -1, 1),
    Sketcher.Constraint("Symmetric", 16, 3, 27, 3, -1, 1),
    Sketcher.Constraint("Symmetric", 15, 3, 28, 3, -1, 1),
    Sketcher.Constraint("Symmetric", 14, 3, 29, 3, -1, 1),
    Sketcher.Constraint("Symmetric", 13, 3, 30, 3, -1, 1),
    Sketcher.Constraint("Symmetric", 12, 3, 31, 3, -1, 1),
    Sketcher.Constraint("Symmetric", 11, 3, 32, 3, -1, 1),
    Sketcher.Constraint("Symmetric", 10, 3, 33, 3, -1, 1),
    Sketcher.Constraint("Symmetric", 9, 3, 34, 3, -1, 1),
    Sketcher.Constraint("Symmetric", 8, 3, 35, 3, -1, 1),
    Sketcher.Constraint("Symmetric", 7, 3, 36, 3, -1, 1),
    Sketcher.Constraint("Symmetric", 6, 3, 37, 3, -1, 1),
    Sketcher.Constraint("Symmetric", 5, 3, 38, 3, -1, 1),
    Sketcher.Constraint("Symmetric", 4, 3, 39, 3, -1, 1),
    Sketcher.Constraint("Symmetric", 3, 3, 40, 3, -1, 1),
    Sketcher.Constraint("Symmetric", 2, 3, 41, 3, -1, 1),
    Sketcher.Constraint("Symmetric", 1, 3, 42, 3, -1, 1),
    Sketcher.Constraint("Symmetric", 0, 3, 43, 3, -1, 1),
    Sketcher.Constraint("Symmetric", 20, 3, 22, 3, -2),
    Sketcher.Constraint("Symmetric", 18, 3, 24, 3, -2),
    Sketcher.Constraint("Symmetric", 16, 3, 26, 3, -2),
    Sketcher.Constraint("Symmetric", 14, 3, 28, 3, -2),
    Sketcher.Constraint("Symmetric", 12, 3, 30, 3, -2),
    Sketcher.Constraint("Symmetric", 10, 3, 32, 3, -2),
    Sketcher.Constraint("Symmetric", 8, 3, 34, 3, -2),
    Sketcher.Constraint("Symmetric", 6, 3, 36, 3, -2),
    Sketcher.Constraint("Symmetric", 4, 3, 38, 3, -2),
    Sketcher.Constraint("Symmetric", 2, 3, 40, 3, -2),
    Sketcher.Constraint("Symmetric", 0, 3, 42, 3, -2),
    Sketcher.Constraint("Horizontal", 0, 3, 2, 3),
    Sketcher.Constraint("Horizontal", 2, 3, 4, 3),
    Sketcher.Constraint("Horizontal", 4, 3, 6, 3),
    Sketcher.Constraint("Horizontal", 6, 3, 8, 3),
    Sketcher.Constraint("Horizontal", 8, 3, 10, 3),
    Sketcher.Constraint("Horizontal", 10, 3, 12, 3),
    Sketcher.Constraint("Horizontal", 12, 3, 14, 3),
    Sketcher.Constraint("Horizontal", 14, 3, 16, 3),
    Sketcher.Constraint("Horizontal", 16, 3, 18, 3),
    Sketcher.Constraint("Horizontal", 18, 3, 20, 3),
    Sketcher.Constraint("Diameter", 0, Q("0.201 in")),
    Sketcher.Constraint("DistanceY", 0, 3, 1, 3, Q("11 in")),
    Sketcher.Constraint("DistanceX", 2, 3, 0, 3, Q("1 in")),
    Sketcher.Constraint("DistanceX", 4, 3, 2, 3, Q("1 in")),
    Sketcher.Constraint("DistanceX", 6, 3, 4, 3, Q("1 in")),
    Sketcher.Constraint("DistanceX", 8, 3, 6, 3, Q("1 in")),
    Sketcher.Constraint("DistanceX", 10, 3, 8, 3, Q("1 in")),
    Sketcher.Constraint("DistanceX", 12, 3, 10, 3, Q("1 in")),
    Sketcher.Constraint("DistanceX", 14, 3, 12, 3, Q("1 in")),
    Sketcher.Constraint("DistanceX", 16, 3, 14, 3, Q("1 in")),
    Sketcher.Constraint("DistanceX", 18, 3, 16, 3, Q("1 in")),
    Sketcher.Constraint("DistanceX", 20, 3, 18, 3, Q("1 in")),
    Sketcher.Constraint("DistanceX", 22, 3, 20, 3, Q("1 in")),
])
doc.recompute()
hole2 = doc.addObject("PartDesign::Hole", "Hole001")
body.addObject(hole2)
hole2.Profile = sketch4
hole2.ThreadType = "None"
hole2.Diameter = Q("0.201 in")
hole2.DepthType = "ThroughAll"
hole2.Reversed = True

doc.recompute()
